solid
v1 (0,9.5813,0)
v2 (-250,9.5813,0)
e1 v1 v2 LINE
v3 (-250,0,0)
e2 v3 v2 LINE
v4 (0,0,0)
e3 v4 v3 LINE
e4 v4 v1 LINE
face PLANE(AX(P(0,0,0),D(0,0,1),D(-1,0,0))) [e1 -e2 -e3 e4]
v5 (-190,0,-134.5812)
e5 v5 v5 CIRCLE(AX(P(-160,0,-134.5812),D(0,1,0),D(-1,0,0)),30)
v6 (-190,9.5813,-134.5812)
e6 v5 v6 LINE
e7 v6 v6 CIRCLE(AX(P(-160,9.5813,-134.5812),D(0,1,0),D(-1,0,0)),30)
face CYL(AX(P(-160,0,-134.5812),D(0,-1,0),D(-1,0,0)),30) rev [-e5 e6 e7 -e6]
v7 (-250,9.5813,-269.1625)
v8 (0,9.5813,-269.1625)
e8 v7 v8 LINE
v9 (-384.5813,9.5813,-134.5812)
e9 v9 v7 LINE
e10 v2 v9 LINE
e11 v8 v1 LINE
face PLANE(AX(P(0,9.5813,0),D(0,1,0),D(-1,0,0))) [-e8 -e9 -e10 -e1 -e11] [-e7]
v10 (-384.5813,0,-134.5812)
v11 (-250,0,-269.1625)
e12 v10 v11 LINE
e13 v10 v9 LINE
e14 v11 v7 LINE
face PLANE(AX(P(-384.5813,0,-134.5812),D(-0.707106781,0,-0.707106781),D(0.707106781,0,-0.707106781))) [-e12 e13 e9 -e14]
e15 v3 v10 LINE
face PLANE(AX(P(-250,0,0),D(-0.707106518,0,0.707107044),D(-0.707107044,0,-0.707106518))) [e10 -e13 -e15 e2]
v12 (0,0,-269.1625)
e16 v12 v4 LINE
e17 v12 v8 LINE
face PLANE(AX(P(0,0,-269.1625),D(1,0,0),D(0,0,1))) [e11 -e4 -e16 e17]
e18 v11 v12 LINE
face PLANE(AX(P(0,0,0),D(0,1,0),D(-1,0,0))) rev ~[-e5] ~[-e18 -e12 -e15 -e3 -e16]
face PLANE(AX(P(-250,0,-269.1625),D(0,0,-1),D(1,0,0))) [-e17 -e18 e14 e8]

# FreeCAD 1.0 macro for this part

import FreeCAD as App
import Part
import Sketcher

V = App.Vector


def add_polygon(sketch, points):
    """Adds a closed chain of lines whose ends are joined by coincident constraints."""
    first, n = sketch.GeometryCount, len(points)
    for a, b in zip(points, points[1:] + points[:1]):
        sketch.addGeometry(Part.LineSegment(App.Vector(*a, 0), App.Vector(*b, 0)), False)
    for i in range(n):
        sketch.addConstraint(Sketcher.Constraint("Coincident", first + i, 2, first + (i + 1) % n, 1))

doc = App.newDocument("Part")
body = doc.addObject("PartDesign::Body", "Body")

# Sketch on XZ plane
sketch1 = body.newObject("Sketcher::SketchObject", "Sketch")
sketch1.AttachmentSupport = (doc.getObject("XZ_Plane"), [""])
sketch1.MapMode = "FlatFace"
add_polygon(sketch1, [(-250, 0), (0, 0), (0, -269), (-250, -269), (-385, -135)])  # lines 0-4
sketch1.addGeometry(Part.Circle(V(-160, -135, 0), V(0, 0, 1), 30), False)  # 5
sketch1.addConstraint(Sketcher.Constraint("Horizontal", 0))
sketch1.addConstraint(Sketcher.Constraint("Vertical", 1))
sketch1.addConstraint(Sketcher.Constraint("Horizontal", 2))
sketch1.addConstraint(Sketcher.Constraint("Coincident", 0, 2, -1, 1))
sketch1.addConstraint(Sketcher.Constraint("Perpendicular", 3, 4))
sketch1.addConstraint(Sketcher.Constraint("Horizontal", 5, 3, 3, 2))
sketch1.addConstraint(Sketcher.Constraint("Vertical", 2, 2, 4, 2))
sketch1.addConstraint(Sketcher.Constraint("Equal", 3, 4))
sketch1.addConstraint(Sketcher.Constraint("Diameter", 5, 60.0))
sketch1.addConstraint(Sketcher.Constraint("DistanceX", 0, 1, 0, 2, 250.0))
sketch1.addConstraint(Sketcher.Constraint("DistanceX", 5, 3, -1, 1, 160.0))
sketch1.addConstraint(Sketcher.Constraint("DistanceY", 1, 2, 1, 1, 269.1625))
pad1 = body.newObject("PartDesign::Pad", "Pad")
pad1.Profile = sketch1
pad1.Length = 9.5813
pad1.Reversed = True

doc.recompute()
